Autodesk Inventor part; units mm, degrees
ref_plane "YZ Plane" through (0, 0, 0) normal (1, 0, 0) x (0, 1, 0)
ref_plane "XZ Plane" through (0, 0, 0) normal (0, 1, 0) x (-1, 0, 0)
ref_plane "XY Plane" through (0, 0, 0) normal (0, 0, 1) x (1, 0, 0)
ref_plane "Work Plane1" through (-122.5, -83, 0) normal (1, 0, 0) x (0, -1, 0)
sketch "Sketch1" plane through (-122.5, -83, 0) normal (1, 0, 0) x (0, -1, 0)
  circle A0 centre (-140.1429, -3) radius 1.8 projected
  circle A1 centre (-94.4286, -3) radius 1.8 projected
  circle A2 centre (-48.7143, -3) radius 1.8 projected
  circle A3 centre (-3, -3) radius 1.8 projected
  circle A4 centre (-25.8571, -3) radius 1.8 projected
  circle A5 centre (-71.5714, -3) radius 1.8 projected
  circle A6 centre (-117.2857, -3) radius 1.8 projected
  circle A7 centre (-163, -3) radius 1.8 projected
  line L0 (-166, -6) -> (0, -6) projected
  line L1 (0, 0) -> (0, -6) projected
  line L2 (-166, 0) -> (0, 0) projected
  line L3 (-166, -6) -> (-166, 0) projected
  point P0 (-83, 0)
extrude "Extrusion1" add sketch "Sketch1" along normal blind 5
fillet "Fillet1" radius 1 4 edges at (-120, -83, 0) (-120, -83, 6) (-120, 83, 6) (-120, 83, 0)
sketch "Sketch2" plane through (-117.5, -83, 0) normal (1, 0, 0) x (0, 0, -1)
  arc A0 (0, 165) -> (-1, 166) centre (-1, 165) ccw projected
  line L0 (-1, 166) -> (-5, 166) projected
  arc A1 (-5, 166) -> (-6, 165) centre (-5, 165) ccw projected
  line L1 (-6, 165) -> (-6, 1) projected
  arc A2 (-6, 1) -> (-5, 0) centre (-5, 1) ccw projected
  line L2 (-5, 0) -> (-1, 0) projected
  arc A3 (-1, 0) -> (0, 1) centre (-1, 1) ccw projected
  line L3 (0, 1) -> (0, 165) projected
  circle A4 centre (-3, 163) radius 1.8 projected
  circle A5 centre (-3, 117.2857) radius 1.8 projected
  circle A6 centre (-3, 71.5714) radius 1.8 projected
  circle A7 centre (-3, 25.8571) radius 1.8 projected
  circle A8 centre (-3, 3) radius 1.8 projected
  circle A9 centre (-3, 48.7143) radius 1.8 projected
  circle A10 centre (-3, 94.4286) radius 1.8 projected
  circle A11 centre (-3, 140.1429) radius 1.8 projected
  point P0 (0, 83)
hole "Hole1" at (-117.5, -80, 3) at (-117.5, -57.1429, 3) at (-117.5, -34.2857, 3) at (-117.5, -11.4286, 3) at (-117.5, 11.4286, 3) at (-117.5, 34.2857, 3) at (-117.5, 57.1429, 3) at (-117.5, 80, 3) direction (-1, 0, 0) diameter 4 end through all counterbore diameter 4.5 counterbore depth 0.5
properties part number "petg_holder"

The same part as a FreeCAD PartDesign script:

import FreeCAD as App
import Part
import Sketcher

V = App.Vector


def edges_at(feature, points):
    """Names of the edges that pass closest to the given points."""
    edges = feature.Shape.Edges
    near = lambda p: min(range(len(edges)), key=lambda i: edges[i].distToShape(Part.Vertex(*p))[0])
    return sorted({f"Edge{near(p) + 1}" for p in points})

doc = App.newDocument("Part")
body = doc.addObject("PartDesign::Body", "Body")

# Sketch on YZ plane
sketch1 = doc.addObject("Sketcher::SketchObject", "Sketch")
body.addObject(sketch1)
sketch1.AttachmentSupport = (doc.YZ_Plane, [""])
sketch1.MapMode = "FlatFace"
sketch1.AttachmentOffset = App.Placement(V(0, 0, -122.5), App.Rotation())
sketch1.addGeometry(Part.LineSegment(V(83, 0, 0), V(83, 6, 0)), False)
sketch1.addGeometry(Part.LineSegment(V(83, 6, 0), V(-83, 6, 0)), False)
sketch1.addGeometry(Part.LineSegment(V(-83, 6, 0), V(-83, 0, 0)), False)
sketch1.addGeometry(Part.LineSegment(V(-83, 0, 0), V(83, 0, 0)), False)
sketch1.addGeometry(Part.Circle(V(80, 3, 0), V(0, 0, 1), 1.8), False)
sketch1.addGeometry(Part.Circle(V(57.1, 3, 0), V(0, 0, 1), 1.8), False)
sketch1.addGeometry(Part.Circle(V(34.3, 3, 0), V(0, 0, 1), 1.8), False)
sketch1.addGeometry(Part.Circle(V(11.4, 3, 0), V(0, 0, 1), 1.8), False)
sketch1.addGeometry(Part.Circle(V(-11.4, 3, 0), V(0, 0, 1), 1.8), False)
sketch1.addGeometry(Part.Circle(V(-34.3, 3, 0), V(0, 0, 1), 1.8), False)
sketch1.addGeometry(Part.Circle(V(-57.1, 3, 0), V(0, 0, 1), 1.8), False)
sketch1.addGeometry(Part.Circle(V(-80, 3, 0), V(0, 0, 1), 1.8), False)
sketch1.addConstraint(Sketcher.Constraint("Coincident", 0, 2, 1, 1))
sketch1.addConstraint(Sketcher.Constraint("Coincident", 1, 2, 2, 1))
sketch1.addConstraint(Sketcher.Constraint("Coincident", 2, 2, 3, 1))
sketch1.addConstraint(Sketcher.Constraint("Coincident", 3, 2, 0, 1))
sketch1.addConstraint(Sketcher.Constraint("Vertical", 0))
sketch1.addConstraint(Sketcher.Constraint("Horizontal", 1))
sketch1.addConstraint(Sketcher.Constraint("Vertical", 2))
sketch1.addConstraint(Sketcher.Constraint("Horizontal", 3))
sketch1.addConstraint(Sketcher.Constraint("Equal", 4, 5))
sketch1.addConstraint(Sketcher.Constraint("Equal", 5, 6))
sketch1.addConstraint(Sketcher.Constraint("Equal", 6, 7))
sketch1.addConstraint(Sketcher.Constraint("Equal", 7, 8))
sketch1.addConstraint(Sketcher.Constraint("Equal", 8, 9))
sketch1.addConstraint(Sketcher.Constraint("Equal", 9, 10))
sketch1.addConstraint(Sketcher.Constraint("Equal", 10, 11))
sketch1.addConstraint(Sketcher.Constraint("Symmetric", 2, 2, 3, 2, -1, 1))
sketch1.addConstraint(Sketcher.Constraint("Symmetric", 7, 3, 8, 3, -2))
sketch1.addConstraint(Sketcher.Constraint("Symmetric", 6, 3, 9, 3, -2))
sketch1.addConstraint(Sketcher.Constraint("Symmetric", 5, 3, 10, 3, -2))
sketch1.addConstraint(Sketcher.Constraint("Symmetric", 4, 3, 11, 3, -2))
sketch1.addConstraint(Sketcher.Constraint("Horizontal", 4, 3, 5, 3))
sketch1.addConstraint(Sketcher.Constraint("Horizontal", 5, 3, 6, 3))
sketch1.addConstraint(Sketcher.Constraint("Horizontal", 6, 3, 7, 3))
sketch1.addConstraint(Sketcher.Constraint("Diameter", 4, 3.6))
sketch1.addConstraint(Sketcher.Constraint("DistanceX", 1, 2, 1, 1, 166.0))
sketch1.addConstraint(Sketcher.Constraint("DistanceY", 0, 1, 0, 2, 6.0))
sketch1.addConstraint(Sketcher.Constraint("DistanceX", -1, 1, 4, 3, 80.0))
sketch1.addConstraint(Sketcher.Constraint("DistanceY", -1, 1, 4, 3, 3.0))
sketch1.addConstraint(Sketcher.Constraint("DistanceX", -1, 1, 5, 3, 57.143))
sketch1.addConstraint(Sketcher.Constraint("DistanceX", 7, 3, 6, 3, 22.857))
sketch1.addConstraint(Sketcher.Constraint("DistanceX", -1, 1, 6, 3, 34.2857))
pad1 = doc.addObject("PartDesign::Pad", "Pad")
body.addObject(pad1)
pad1.Profile = sketch1
pad1.Length = 5
doc.recompute()

fillet = doc.addObject("PartDesign::Fillet", "Fillet")
body.addObject(fillet)
fillet.Base = (pad1, edges_at(pad1, [
    (-120, -83, 0),
    (-120, -83, 6),
    (-120, 83, 6),
    (-120, 83, 0),
]))
fillet.Radius = 1

# Sketch on YZ plane
sketch2 = doc.addObject("Sketcher::SketchObject", "Sketch001")
body.addObject(sketch2)
sketch2.AttachmentSupport = (doc.YZ_Plane, [""])
sketch2.MapMode = "FlatFace"
sketch2.AttachmentOffset = App.Placement(V(0, 0, -117.5), App.Rotation())
sketch2.addGeometry(Part.Circle(V(-80, 3, 0), V(0, 0, 1), 2), False)
sketch2.addGeometry(Part.Circle(V(-57.1, 3, 0), V(0, 0, 1), 2), False)
sketch2.addGeometry(Part.Circle(V(-34.3, 3, 0), V(0, 0, 1), 2), False)
sketch2.addGeometry(Part.Circle(V(-11.4, 3, 0), V(0, 0, 1), 2), False)
sketch2.addGeometry(Part.Circle(V(11.4, 3, 0), V(0, 0, 1), 2), False)
sketch2.addGeometry(Part.Circle(V(34.3, 3, 0), V(0, 0, 1), 2), False)
sketch2.addGeometry(Part.Circle(V(57.1, 3, 0), V(0, 0, 1), 2), False)
sketch2.addGeometry(Part.Circle(V(80, 3, 0), V(0, 0, 1), 2), False)
sketch2.addConstraint(Sketcher.Constraint("Equal", 0, 1))
sketch2.addConstraint(Sketcher.Constraint("Equal", 1, 2))
sketch2.addConstraint(Sketcher.Constraint("Equal", 2, 3))
sketch2.addConstraint(Sketcher.Constraint("Equal", 3, 4))
sketch2.addConstraint(Sketcher.Constraint("Equal", 4, 5))
sketch2.addConstraint(Sketcher.Constraint("Equal", 5, 6))
sketch2.addConstraint(Sketcher.Constraint("Equal", 6, 7))
sketch2.addConstraint(Sketcher.Constraint("Symmetric", 3, 3, 4, 3, -2))
sketch2.addConstraint(Sketcher.Constraint("Symmetric", 2, 3, 5, 3, -2))
sketch2.addConstraint(Sketcher.Constraint("Symmetric", 1, 3, 6, 3, -2))
sketch2.addConstraint(Sketcher.Constraint("Symmetric", 0, 3, 7, 3, -2))
sketch2.addConstraint(Sketcher.Constraint("Horizontal", 0, 3, 1, 3))
sketch2.addConstraint(Sketcher.Constraint("Horizontal", 1, 3, 2, 3))
sketch2.addConstraint(Sketcher.Constraint("Horizontal", 2, 3, 3, 3))
sketch2.addConstraint(Sketcher.Constraint("Diameter", 0, 4.0))
sketch2.addConstraint(Sketcher.Constraint("DistanceX", 0, 3, -1, 1, 80.0))
sketch2.addConstraint(Sketcher.Constraint("DistanceY", -1, 1, 0, 3, 3.0))
sketch2.addConstraint(Sketcher.Constraint("DistanceX", 1, 3, -1, 1, 57.143))
sketch2.addConstraint(Sketcher.Constraint("DistanceX", 2, 3, 3, 3, 22.857))
sketch2.addConstraint(Sketcher.Constraint("DistanceX", 2, 3, -1, 1, 34.2857))
doc.recompute()
hole = doc.addObject("PartDesign::Hole", "Hole")
body.addObject(hole)
hole.Profile = sketch2
hole.ThreadType = "None"
hole.Diameter = 4
hole.DepthType = "ThroughAll"
hole.HoleCutType = "Counterbore"
hole.HoleCutDiameter = 4.5
hole.HoleCutDepth = 0.5

doc.recompute()
